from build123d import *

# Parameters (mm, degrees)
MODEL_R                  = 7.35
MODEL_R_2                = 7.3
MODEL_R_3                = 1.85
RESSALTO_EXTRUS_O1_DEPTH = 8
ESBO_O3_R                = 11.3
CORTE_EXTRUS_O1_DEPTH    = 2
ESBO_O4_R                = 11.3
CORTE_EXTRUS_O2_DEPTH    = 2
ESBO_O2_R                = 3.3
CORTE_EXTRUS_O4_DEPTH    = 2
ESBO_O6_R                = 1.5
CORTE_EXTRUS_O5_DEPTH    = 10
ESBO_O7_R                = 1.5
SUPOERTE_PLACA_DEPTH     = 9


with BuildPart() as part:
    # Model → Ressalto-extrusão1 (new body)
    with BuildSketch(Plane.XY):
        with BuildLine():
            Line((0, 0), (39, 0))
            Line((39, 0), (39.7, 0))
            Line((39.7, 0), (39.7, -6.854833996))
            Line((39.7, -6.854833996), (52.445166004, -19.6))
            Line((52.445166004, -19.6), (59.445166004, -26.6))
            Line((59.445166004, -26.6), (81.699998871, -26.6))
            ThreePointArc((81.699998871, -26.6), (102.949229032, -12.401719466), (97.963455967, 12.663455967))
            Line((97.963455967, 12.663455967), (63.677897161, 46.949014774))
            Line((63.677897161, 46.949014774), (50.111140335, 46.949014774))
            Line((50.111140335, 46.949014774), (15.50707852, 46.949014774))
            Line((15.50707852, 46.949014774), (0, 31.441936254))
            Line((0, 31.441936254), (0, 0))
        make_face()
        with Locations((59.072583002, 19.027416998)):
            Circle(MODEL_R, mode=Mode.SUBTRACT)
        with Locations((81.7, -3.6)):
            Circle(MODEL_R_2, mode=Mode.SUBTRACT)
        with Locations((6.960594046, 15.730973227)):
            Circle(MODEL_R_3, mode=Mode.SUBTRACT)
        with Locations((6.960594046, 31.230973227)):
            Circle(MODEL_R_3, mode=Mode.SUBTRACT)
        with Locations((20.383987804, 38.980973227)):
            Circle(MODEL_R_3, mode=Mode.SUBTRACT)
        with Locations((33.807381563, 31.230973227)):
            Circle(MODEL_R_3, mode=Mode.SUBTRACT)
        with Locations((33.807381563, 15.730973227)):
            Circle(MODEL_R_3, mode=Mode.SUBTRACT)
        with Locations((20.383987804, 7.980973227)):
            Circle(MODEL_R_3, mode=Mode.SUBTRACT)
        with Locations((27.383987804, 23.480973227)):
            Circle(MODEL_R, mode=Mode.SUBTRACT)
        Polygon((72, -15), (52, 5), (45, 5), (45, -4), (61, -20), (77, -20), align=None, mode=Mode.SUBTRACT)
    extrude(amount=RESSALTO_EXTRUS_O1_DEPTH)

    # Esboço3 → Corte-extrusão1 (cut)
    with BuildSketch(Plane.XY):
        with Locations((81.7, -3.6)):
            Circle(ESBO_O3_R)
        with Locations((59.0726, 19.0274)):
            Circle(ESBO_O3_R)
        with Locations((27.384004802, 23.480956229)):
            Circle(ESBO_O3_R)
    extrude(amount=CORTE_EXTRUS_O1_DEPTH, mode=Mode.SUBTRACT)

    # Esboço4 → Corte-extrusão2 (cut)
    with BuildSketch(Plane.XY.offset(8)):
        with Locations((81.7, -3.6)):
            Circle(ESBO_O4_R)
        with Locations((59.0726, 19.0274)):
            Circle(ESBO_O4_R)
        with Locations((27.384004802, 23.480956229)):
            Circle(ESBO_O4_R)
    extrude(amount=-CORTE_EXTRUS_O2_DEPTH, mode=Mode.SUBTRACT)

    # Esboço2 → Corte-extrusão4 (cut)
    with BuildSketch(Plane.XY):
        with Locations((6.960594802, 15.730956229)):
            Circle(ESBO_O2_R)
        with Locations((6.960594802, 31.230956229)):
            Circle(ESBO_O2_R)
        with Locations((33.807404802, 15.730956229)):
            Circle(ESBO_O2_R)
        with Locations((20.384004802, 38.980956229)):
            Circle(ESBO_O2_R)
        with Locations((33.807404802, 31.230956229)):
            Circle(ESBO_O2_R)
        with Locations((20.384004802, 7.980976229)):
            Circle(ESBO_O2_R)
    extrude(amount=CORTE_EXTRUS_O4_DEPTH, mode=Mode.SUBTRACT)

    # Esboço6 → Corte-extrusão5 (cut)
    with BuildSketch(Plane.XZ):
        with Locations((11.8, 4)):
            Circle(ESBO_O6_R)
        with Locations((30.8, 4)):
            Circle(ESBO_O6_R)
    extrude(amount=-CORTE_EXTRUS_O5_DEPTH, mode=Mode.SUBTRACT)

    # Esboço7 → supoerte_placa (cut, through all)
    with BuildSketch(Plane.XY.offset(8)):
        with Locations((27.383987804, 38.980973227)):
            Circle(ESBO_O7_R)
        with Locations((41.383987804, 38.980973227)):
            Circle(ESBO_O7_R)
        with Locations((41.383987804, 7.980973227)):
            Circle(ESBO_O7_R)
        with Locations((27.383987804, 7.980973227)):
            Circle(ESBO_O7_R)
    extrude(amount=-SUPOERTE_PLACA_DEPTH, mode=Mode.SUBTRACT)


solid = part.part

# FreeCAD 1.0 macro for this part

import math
import FreeCAD as App
import Part
import Sketcher
from FreeCAD import Vector

doc = App.newDocument("Part")
body = doc.addObject("PartDesign::Body", "Body")

# Sketch on XY plane
sketch1 = doc.addObject("Sketcher::SketchObject", "Sketch")
body.addObject(sketch1)
sketch1.AttachmentSupport = (doc.XY_Plane, [""])
sketch1.MapMode = "FlatFace"
sketch1.addGeometry(Part.LineSegment(Vector(0, 0, 0), Vector(39.7, 0, 0)), False)
sketch1.addGeometry(Part.LineSegment(Vector(39.7, 0, 0), Vector(39.7, -6.9, 0)), False)
sketch1.addGeometry(Part.LineSegment(Vector(39.7, -6.9, 0), Vector(59.4, -26.6, 0)), False)
sketch1.addGeometry(Part.LineSegment(Vector(59.4, -26.6, 0), Vector(81.7, -26.6, 0)), False)
sketch1.addGeometry(Part.ArcOfCircle(Part.Circle(Vector(81.7, -3.6, 0), Vector(0, 0, 1), 23), math.radians(-90), math.radians(45)), False)
sketch1.addGeometry(Part.LineSegment(Vector(98, 12.7, 0), Vector(63.7, 46.9, 0)), False)
sketch1.addGeometry(Part.LineSegment(Vector(63.7, 46.9, 0), Vector(15.5, 46.9, 0)), False)
sketch1.addGeometry(Part.LineSegment(Vector(15.5, 46.9, 0), Vector(0, 31.4, 0)), False)
sketch1.addGeometry(Part.LineSegment(Vector(0, 31.4, 0), Vector(0, 0, 0)), False)
sketch1.addGeometry(Part.Circle(Vector(20.4, 8, 0), Vector(0, 0, 1), 1.9), False)
sketch1.addGeometry(Part.LineSegment(Vector(52, 5, 0), Vector(77, -20, 0)), False)
sketch1.addGeometry(Part.LineSegment(Vector(77, -20, 0), Vector(61, -20, 0)), False)
sketch1.addGeometry(Part.LineSegment(Vector(61, -20, 0), Vector(45, -4, 0)), False)
sketch1.addGeometry(Part.LineSegment(Vector(45, -4, 0), Vector(45, 5, 0)), False)
sketch1.addGeometry(Part.LineSegment(Vector(45, 5, 0), Vector(52, 5, 0)), False)
sketch1.addGeometry(Part.Circle(Vector(81.7, -3.6, 0), Vector(0, 0, 1), 7.3), False)
sketch1.addGeometry(Part.Circle(Vector(7, 15.7, 0), Vector(0, 0, 1), 1.9), False)
sketch1.addGeometry(Part.Circle(Vector(33.8, 15.7, 0), Vector(0, 0, 1), 1.9), False)
sketch1.addGeometry(Part.Circle(Vector(27.4, 23.5, 0), Vector(0, 0, 1), 7.3), False)
sketch1.addGeometry(Part.Circle(Vector(7, 31.2, 0), Vector(0, 0, 1), 1.9), False)
sketch1.addGeometry(Part.Circle(Vector(20.4, 39, 0), Vector(0, 0, 1), 1.9), False)
sketch1.addGeometry(Part.Circle(Vector(33.8, 31.2, 0), Vector(0, 0, 1), 1.9), False)
sketch1.addGeometry(Part.Circle(Vector(59.1, 19, 0), Vector(0, 0, 1), 7.3), False)
sketch1.addConstraint(Sketcher.Constraint("Coincident", 0, 2, 1, 1))
sketch1.addConstraint(Sketcher.Constraint("Coincident", 1, 2, 2, 1))
sketch1.addConstraint(Sketcher.Constraint("Coincident", 2, 2, 3, 1))
sketch1.addConstraint(Sketcher.Constraint("Tangent", 3, 2, 4, 1))
sketch1.addConstraint(Sketcher.Constraint("Tangent", 4, 2, 5, 1))
sketch1.addConstraint(Sketcher.Constraint("Coincident", 5, 2, 6, 1))
sketch1.addConstraint(Sketcher.Constraint("Coincident", 6, 2, 7, 1))
sketch1.addConstraint(Sketcher.Constraint("Coincident", 7, 2, 8, 1))
sketch1.addConstraint(Sketcher.Constraint("Coincident", 8, 2, 0, 1))
sketch1.addConstraint(Sketcher.Constraint("Coincident", 10, 2, 11, 1))
sketch1.addConstraint(Sketcher.Constraint("Coincident", 11, 2, 12, 1))
sketch1.addConstraint(Sketcher.Constraint("Coincident", 12, 2, 13, 1))
sketch1.addConstraint(Sketcher.Constraint("Coincident", 13, 2, 14, 1))
sketch1.addConstraint(Sketcher.Constraint("Coincident", 14, 2, 10, 1))
sketch1.addConstraint(Sketcher.Constraint("Horizontal", 0))
sketch1.addConstraint(Sketcher.Constraint("Vertical", 1))
sketch1.addConstraint(Sketcher.Constraint("Horizontal", 3))
sketch1.addConstraint(Sketcher.Constraint("Horizontal", 6))
sketch1.addConstraint(Sketcher.Constraint("Vertical", 8))
sketch1.addConstraint(Sketcher.Constraint("Horizontal", 11))
sketch1.addConstraint(Sketcher.Constraint("Vertical", 13))
sketch1.addConstraint(Sketcher.Constraint("Horizontal", 14))
sketch1.addConstraint(Sketcher.Constraint("Coincident", 8, 2, -1, 1))
sketch1.addConstraint(Sketcher.Constraint("Coincident", 15, 3, 4, 3))
sketch1.addConstraint(Sketcher.Constraint("Equal", 9, 16))
sketch1.addConstraint(Sketcher.Constraint("Equal", 16, 17))
sketch1.addConstraint(Sketcher.Constraint("Equal", 17, 19))
sketch1.addConstraint(Sketcher.Constraint("Equal", 19, 20))
sketch1.addConstraint(Sketcher.Constraint("Equal", 20, 21))
sketch1.addConstraint(Sketcher.Constraint("Equal", 18, 22))
sketch1.addConstraint(Sketcher.Constraint("Parallel", 2, 5))
sketch1.addConstraint(Sketcher.Constraint("Perpendicular", 5, 7))
sketch1.addConstraint(Sketcher.Constraint("Perpendicular", 7, 10))
sketch1.addConstraint(Sketcher.Constraint("Parallel", 10, 12))
sketch1.addConstraint(Sketcher.Constraint("Horizontal", 16, 3, 17, 3))
sketch1.addConstraint(Sketcher.Constraint("Horizontal", 19, 3, 21, 3))
sketch1.addConstraint(Sketcher.Constraint("Vertical", 16, 3, 19, 3))
sketch1.addConstraint(Sketcher.Constraint("Vertical", 9, 3, 20, 3))
sketch1.addConstraint(Sketcher.Constraint("Vertical", 17, 3, 21, 3))
sketch1.addConstraint(Sketcher.Constraint("Radius", 4, 23.0))
sketch1.addConstraint(Sketcher.Constraint("Diameter", 9, 3.7))
sketch1.addConstraint(Sketcher.Constraint("Diameter", 15, 14.6))
sketch1.addConstraint(Sketcher.Constraint("Diameter", 18, 14.7))
sketch1.addConstraint(Sketcher.Constraint("DistanceX", 11, 2, 11, 1, 16.0))
sketch1.addConstraint(Sketcher.Constraint("DistanceX", 14, 1, 14, 2, 7.0))
sketch1.addConstraint(Sketcher.Constraint("DistanceY", 13, 1, 13, 2, 9.0))
sketch1.addConstraint(Sketcher.Constraint("DistanceX", 0, 1, 0, 2, 39.7))
sketch1.addConstraint(Sketcher.Constraint("DistanceX", -1, 1, 10, 2, 77.0))
sketch1.addConstraint(Sketcher.Constraint("DistanceY", 10, 2, -1, 1, 20.0))
sketch1.addConstraint(Sketcher.Constraint("DistanceX", -1, 1, 12, 2, 45.0))
sketch1.addConstraint(Sketcher.Constraint("DistanceX", 9, 3, 18, 3, 7.0))
sketch1.addConstraint(Sketcher.Constraint("DistanceY", 9, 3, 20, 3, 31.0))
sketch1.addConstraint(Sketcher.Constraint("DistanceX", 1, 2, 3, 2, 41.999999))
sketch1.addConstraint(Sketcher.Constraint("DistanceY", 4, 3, -1, 1, 3.6))
sketch1.addConstraint(Sketcher.Constraint("DistanceY", 9, 3, 18, 3, 15.5))
sketch1.addConstraint(Sketcher.Constraint("DistanceY", 16, 3, 19, 3, 15.5))
sketch1.addConstraint(Sketcher.Constraint("DistanceY", 9, 3, 16, 3, 7.75))
sketch1.addConstraint(Sketcher.Constraint("DistanceX", 6, 2, 6, 1, 48.170819))
sketch1.addConstraint(Sketcher.Constraint("DistanceX", 17, 3, 22, 3, 25.265201))
sketch1.addConstraint(Sketcher.Constraint("Distance", 2, 27.923882))
sketch1.addConstraint(Sketcher.Constraint("Distance", 7, 21.930321))
sketch1.addConstraint(Sketcher.Constraint("DistanceX", -1, 1, 17, 3, 33.807382))
sketch1.addConstraint(Sketcher.Constraint("DistanceY", 1, 2, 22, 3, 25.882251))
sketch1.addConstraint(Sketcher.Constraint("DistanceY", 21, 3, 5, 2, 15.718042))
sketch1.addConstraint(Sketcher.Constraint("DistanceX", 18, 3, 5, 2, 36.293909))
sketch1.addConstraint(Sketcher.Constraint("DistanceX", -1, 1, 16, 3, 6.960594))
pad1 = doc.addObject("PartDesign::Pad", "Pad")
body.addObject(pad1)
pad1.Profile = sketch1
pad1.Length = 8

# Sketch on XY plane
sketch2 = doc.addObject("Sketcher::SketchObject", "Sketch001")
body.addObject(sketch2)
sketch2.AttachmentSupport = (doc.XY_Plane, [""])
sketch2.MapMode = "FlatFace"
sketch2.addGeometry(Part.Circle(Vector(82, -4, 0), Vector(0, 0, 1), 11), False)
sketch2.addGeometry(Part.Circle(Vector(59, 19, 0), Vector(0, 0, 1), 11), False)
sketch2.addGeometry(Part.Circle(Vector(27, 23, 0), Vector(0, 0, 1), 11), False)
sketch2.addConstraint(Sketcher.Constraint("Equal", 0, 1))
sketch2.addConstraint(Sketcher.Constraint("Equal", 1, 2))
sketch2.addConstraint(Sketcher.Constraint("Diameter", 0, 22.6))
sketch2.addConstraint(Sketcher.Constraint("DistanceX", -1, 1, 0, 3, 81.7))
sketch2.addConstraint(Sketcher.Constraint("DistanceY", 0, 3, -1, 1, 3.6))
sketch2.addConstraint(Sketcher.Constraint("DistanceX", -1, 1, 1, 3, 59.0726))
sketch2.addConstraint(Sketcher.Constraint("DistanceY", -1, 1, 1, 3, 19.0274))
sketch2.addConstraint(Sketcher.Constraint("DistanceX", -1, 1, 2, 3, 27.384005))
sketch2.addConstraint(Sketcher.Constraint("DistanceY", -1, 1, 2, 3, 23.480956))
pocket1 = doc.addObject("PartDesign::Pocket", "Pocket")
body.addObject(pocket1)
pocket1.Profile = sketch2
pocket1.Length = 2
pocket1.Reversed = True

# Sketch on XY plane
sketch3 = doc.addObject("Sketcher::SketchObject", "Sketch002")
body.addObject(sketch3)
sketch3.AttachmentSupport = (doc.XY_Plane, [""])
sketch3.MapMode = "FlatFace"
sketch3.AttachmentOffset = App.Placement(Vector(0, 0, 8), App.Rotation())
sketch3.addGeometry(Part.Circle(Vector(82, -4, 0), Vector(0, 0, 1), 11), False)
sketch3.addGeometry(Part.Circle(Vector(59, 19, 0), Vector(0, 0, 1), 11), False)
sketch3.addGeometry(Part.Circle(Vector(27, 23, 0), Vector(0, 0, 1), 11), False)
sketch3.addConstraint(Sketcher.Constraint("Equal", 0, 1))
sketch3.addConstraint(Sketcher.Constraint("Equal", 1, 2))
sketch3.addConstraint(Sketcher.Constraint("Diameter", 0, 22.6))
sketch3.addConstraint(Sketcher.Constraint("DistanceX", -1, 1, 0, 3, 81.7))
sketch3.addConstraint(Sketcher.Constraint("DistanceY", 0, 3, -1, 1, 3.6))
sketch3.addConstraint(Sketcher.Constraint("DistanceX", -1, 1, 1, 3, 59.0726))
sketch3.addConstraint(Sketcher.Constraint("DistanceY", -1, 1, 1, 3, 19.0274))
sketch3.addConstraint(Sketcher.Constraint("DistanceX", -1, 1, 2, 3, 27.384005))
sketch3.addConstraint(Sketcher.Constraint("DistanceY", -1, 1, 2, 3, 23.480956))
pocket2 = doc.addObject("PartDesign::Pocket", "Pocket001")
body.addObject(pocket2)
pocket2.Profile = sketch3
pocket2.Length = 2

# Sketch on XY plane
sketch4 = doc.addObject("Sketcher::SketchObject", "Sketch003")
body.addObject(sketch4)
sketch4.AttachmentSupport = (doc.XY_Plane, [""])
sketch4.MapMode = "FlatFace"
sketch4.addGeometry(Part.Circle(Vector(7, 15.7, 0), Vector(0, 0, 1), 3.3), False)
sketch4.addGeometry(Part.Circle(Vector(7, 31.2, 0), Vector(0, 0, 1), 3.3), False)
sketch4.addGeometry(Part.Circle(Vector(33.8, 15.7, 0), Vector(0, 0, 1), 3.3), False)
sketch4.addGeometry(Part.Circle(Vector(20.4, 39, 0), Vector(0, 0, 1), 3.3), False)
sketch4.addGeometry(Part.Circle(Vector(33.8, 31.2, 0), Vector(0, 0, 1), 3.3), False)
sketch4.addGeometry(Part.Circle(Vector(20.4, 8, 0), Vector(0, 0, 1), 3.3), False)
sketch4.addConstraint(Sketcher.Constraint("Equal", 0, 1))
sketch4.addConstraint(Sketcher.Constraint("Equal", 1, 2))
sketch4.addConstraint(Sketcher.Constraint("Equal", 2, 3))
sketch4.addConstraint(Sketcher.Constraint("Equal", 3, 4))
sketch4.addConstraint(Sketcher.Constraint("Equal", 4, 5))
sketch4.addConstraint(Sketcher.Constraint("Horizontal", 0, 3, 2, 3))
sketch4.addConstraint(Sketcher.Constraint("Horizontal", 1, 3, 4, 3))
sketch4.addConstraint(Sketcher.Constraint("Vertical", 0, 3, 1, 3))
sketch4.addConstraint(Sketcher.Constraint("Vertical", 2, 3, 4, 3))
sketch4.addConstraint(Sketcher.Constraint("Vertical", 3, 3, 5, 3))
sketch4.addConstraint(Sketcher.Constraint("Diameter", 0, 6.6))
sketch4.addConstraint(Sketcher.Constraint("DistanceY", 0, 3, 1, 3, 15.5))
sketch4.addConstraint(Sketcher.Constraint("DistanceY", 1, 3, 3, 3, 7.75))
sketch4.addConstraint(Sketcher.Constraint("DistanceX", 3, 3, 2, 3, 13.4234))
sketch4.addConstraint(Sketcher.Constraint("DistanceX", 0, 3, 2, 3, 26.84681))
sketch4.addConstraint(Sketcher.Constraint("DistanceY", 5, 3, 2, 3, 7.74998))
sketch4.addConstraint(Sketcher.Constraint("DistanceX", -1, 1, 0, 3, 6.960595))
sketch4.addConstraint(Sketcher.Constraint("DistanceY", -1, 1, 0, 3, 15.730956))
pocket3 = doc.addObject("PartDesign::Pocket", "Pocket002")
body.addObject(pocket3)
pocket3.Profile = sketch4
pocket3.Length = 2
pocket3.Reversed = True

# Sketch on XZ plane
sketch5 = doc.addObject("Sketcher::SketchObject", "Sketch004")
body.addObject(sketch5)
sketch5.AttachmentSupport = (doc.XZ_Plane, [""])
sketch5.MapMode = "FlatFace"
sketch5.addGeometry(Part.Circle(Vector(11.8, 4, 0), Vector(0, 0, 1), 1.5), False)
sketch5.addGeometry(Part.Circle(Vector(30.8, 4, 0), Vector(0, 0, 1), 1.5), False)
sketch5.addConstraint(Sketcher.Constraint("Equal", 0, 1))
sketch5.addConstraint(Sketcher.Constraint("Horizontal", 0, 3, 1, 3))
sketch5.addConstraint(Sketcher.Constraint("Diameter", 0, 3.0))
sketch5.addConstraint(Sketcher.Constraint("DistanceY", -1, 1, 0, 3, 4.0))
sketch5.addConstraint(Sketcher.Constraint("DistanceX", 0, 3, 1, 3, 19.0))
sketch5.addConstraint(Sketcher.Constraint("DistanceX", -1, 1, 0, 3, 11.8))
pocket4 = doc.addObject("PartDesign::Pocket", "Pocket003")
body.addObject(pocket4)
pocket4.Profile = sketch5
pocket4.Length = 10

# Sketch on XY plane
sketch6 = doc.addObject("Sketcher::SketchObject", "Sketch005")
body.addObject(sketch6)
sketch6.AttachmentSupport = (doc.XY_Plane, [""])
sketch6.MapMode = "FlatFace"
sketch6.AttachmentOffset = App.Placement(Vector(0, 0, 8), App.Rotation())
sketch6.addGeometry(Part.Circle(Vector(27.4, 39, 0), Vector(0, 0, 1), 1.5), False)
sketch6.addGeometry(Part.Circle(Vector(41.4, 39, 0), Vector(0, 0, 1), 1.5), False)
sketch6.addGeometry(Part.Circle(Vector(41.4, 8, 0), Vector(0, 0, 1), 1.5), False)
sketch6.addGeometry(Part.Circle(Vector(27.4, 8, 0), Vector(0, 0, 1), 1.5), False)
sketch6.addConstraint(Sketcher.Constraint("Equal", 0, 1))
sketch6.addConstraint(Sketcher.Constraint("Equal", 1, 2))
sketch6.addConstraint(Sketcher.Constraint("Equal", 2, 3))
sketch6.addConstraint(Sketcher.Constraint("Horizontal", 0, 3, 1, 3))
sketch6.addConstraint(Sketcher.Constraint("Horizontal", 2, 3, 3, 3))
sketch6.addConstraint(Sketcher.Constraint("Vertical", 1, 3, 2, 3))
sketch6.addConstraint(Sketcher.Constraint("Vertical", 0, 3, 3, 3))
sketch6.addConstraint(Sketcher.Constraint("Diameter", 0, 3.0))
sketch6.addConstraint(Sketcher.Constraint("DistanceX", 0, 3, 1, 3, 14.0))
sketch6.addConstraint(Sketcher.Constraint("DistanceY", 2, 3, 1, 3, 31.0))
sketch6.addConstraint(Sketcher.Constraint("DistanceX", -1, 1, 0, 3, 27.383988))
sketch6.addConstraint(Sketcher.Constraint("DistanceY", -1, 1, 0, 3, 38.980973))
pocket5 = doc.addObject("PartDesign::Pocket", "Pocket004")
body.addObject(pocket5)
pocket5.Profile = sketch6
pocket5.Type = "ThroughAll"

doc.recompute()
